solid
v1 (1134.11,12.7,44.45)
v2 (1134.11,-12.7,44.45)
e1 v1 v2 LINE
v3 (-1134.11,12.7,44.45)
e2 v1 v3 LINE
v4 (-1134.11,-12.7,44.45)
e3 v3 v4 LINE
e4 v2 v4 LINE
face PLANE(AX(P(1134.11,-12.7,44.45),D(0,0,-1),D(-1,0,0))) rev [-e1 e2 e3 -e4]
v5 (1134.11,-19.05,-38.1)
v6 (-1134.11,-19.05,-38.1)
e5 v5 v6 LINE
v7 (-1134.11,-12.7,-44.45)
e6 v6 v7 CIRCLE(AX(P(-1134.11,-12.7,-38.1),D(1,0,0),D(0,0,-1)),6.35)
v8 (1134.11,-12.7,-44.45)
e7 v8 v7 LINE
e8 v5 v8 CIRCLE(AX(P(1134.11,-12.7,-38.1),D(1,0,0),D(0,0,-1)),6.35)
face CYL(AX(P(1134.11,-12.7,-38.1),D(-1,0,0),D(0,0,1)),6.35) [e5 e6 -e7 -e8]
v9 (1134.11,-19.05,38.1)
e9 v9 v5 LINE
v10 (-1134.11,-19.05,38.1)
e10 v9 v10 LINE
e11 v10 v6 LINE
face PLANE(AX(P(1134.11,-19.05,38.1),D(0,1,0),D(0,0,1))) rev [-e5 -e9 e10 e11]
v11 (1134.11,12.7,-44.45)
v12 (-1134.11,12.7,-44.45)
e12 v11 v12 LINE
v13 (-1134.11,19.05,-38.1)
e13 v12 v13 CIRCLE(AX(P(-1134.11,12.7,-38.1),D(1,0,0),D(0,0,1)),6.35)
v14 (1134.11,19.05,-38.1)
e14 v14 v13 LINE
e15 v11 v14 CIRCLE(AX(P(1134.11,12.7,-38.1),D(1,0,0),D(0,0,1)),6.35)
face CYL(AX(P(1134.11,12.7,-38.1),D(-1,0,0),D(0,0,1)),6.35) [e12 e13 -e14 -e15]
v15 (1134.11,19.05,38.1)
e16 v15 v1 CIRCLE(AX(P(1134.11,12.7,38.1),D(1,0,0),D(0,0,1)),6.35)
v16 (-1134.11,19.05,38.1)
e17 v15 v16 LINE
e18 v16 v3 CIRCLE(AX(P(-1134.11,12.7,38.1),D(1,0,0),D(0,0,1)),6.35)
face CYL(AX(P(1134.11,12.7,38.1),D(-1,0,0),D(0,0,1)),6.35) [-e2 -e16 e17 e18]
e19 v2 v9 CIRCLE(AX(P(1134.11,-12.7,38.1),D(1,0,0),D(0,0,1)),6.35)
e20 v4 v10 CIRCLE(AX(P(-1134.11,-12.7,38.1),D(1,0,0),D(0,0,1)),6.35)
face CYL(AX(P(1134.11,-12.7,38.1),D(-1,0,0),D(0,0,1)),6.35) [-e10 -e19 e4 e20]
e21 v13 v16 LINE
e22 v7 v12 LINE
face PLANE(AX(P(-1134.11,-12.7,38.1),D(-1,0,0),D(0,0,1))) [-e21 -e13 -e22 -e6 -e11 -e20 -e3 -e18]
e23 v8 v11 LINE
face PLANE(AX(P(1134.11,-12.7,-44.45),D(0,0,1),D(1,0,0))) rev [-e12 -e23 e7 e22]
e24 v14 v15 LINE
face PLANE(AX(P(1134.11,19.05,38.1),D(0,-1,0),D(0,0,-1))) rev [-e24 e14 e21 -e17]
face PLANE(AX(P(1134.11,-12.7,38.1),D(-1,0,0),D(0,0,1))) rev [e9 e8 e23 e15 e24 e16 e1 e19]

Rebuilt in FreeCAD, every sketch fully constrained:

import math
import FreeCAD as App
import Part
import Sketcher

V = App.Vector
Q = App.Units.Quantity

doc = App.newDocument("Part")
body = doc.addObject("PartDesign::Body", "Body")

# Sketch on YZ plane
sketch1 = doc.addObject("Sketcher::SketchObject", "Sketch")
body.addObject(sketch1)
sketch1.AttachmentSupport = (doc.YZ_Plane, [""])
sketch1.MapMode = "FlatFace"
sketch1.addGeometry(Part.LineSegment(V(-19, 38, 0), V(-19, -38, 0)), False)
sketch1.addGeometry(Part.ArcOfCircle(Part.Circle(V(-13, -38, 0), V(0, 0, 1), 6), math.radians(180), math.radians(270)), False)
sketch1.addGeometry(Part.LineSegment(V(-13, -44, 0), V(13, -44, 0)), False)
sketch1.addGeometry(Part.ArcOfCircle(Part.Circle(V(13, -38, 0), V(0, 0, 1), 6), math.radians(-90), math.radians(0)), False)
sketch1.addGeometry(Part.LineSegment(V(19, -38, 0), V(19, 38, 0)), False)
sketch1.addGeometry(Part.ArcOfCircle(Part.Circle(V(13, 38, 0), V(0, 0, 1), 6), math.radians(0), math.radians(90)), False)
sketch1.addGeometry(Part.LineSegment(V(13, 44, 0), V(-13, 44, 0)), False)
sketch1.addGeometry(Part.ArcOfCircle(Part.Circle(V(-13, 38, 0), V(0, 0, 1), 6), math.radians(90), math.radians(180)), False)
sketch1.addConstraint(Sketcher.Constraint("Tangent", 0, 2, 1, 1))
sketch1.addConstraint(Sketcher.Constraint("Tangent", 1, 2, 2, 1))
sketch1.addConstraint(Sketcher.Constraint("Tangent", 2, 2, 3, 1))
sketch1.addConstraint(Sketcher.Constraint("Tangent", 3, 2, 4, 1))
sketch1.addConstraint(Sketcher.Constraint("Tangent", 4, 2, 5, 1))
sketch1.addConstraint(Sketcher.Constraint("Tangent", 5, 2, 6, 1))
sketch1.addConstraint(Sketcher.Constraint("Tangent", 6, 2, 7, 1))
sketch1.addConstraint(Sketcher.Constraint("Tangent", 7, 2, 0, 1))
sketch1.addConstraint(Sketcher.Constraint("Vertical", 0))
sketch1.addConstraint(Sketcher.Constraint("Horizontal", 2))
sketch1.addConstraint(Sketcher.Constraint("Vertical", 4))
sketch1.addConstraint(Sketcher.Constraint("Horizontal", 6))
sketch1.addConstraint(Sketcher.Constraint("Equal", 1, 3))
sketch1.addConstraint(Sketcher.Constraint("Equal", 3, 5))
sketch1.addConstraint(Sketcher.Constraint("Equal", 5, 7))
sketch1.addConstraint(Sketcher.Constraint("Symmetric", 1, 3, 5, 3, -1, 1))
sketch1.addConstraint(Sketcher.Constraint("DistanceX", 2, 1, 2, 2, Q("1 in")))
sketch1.addConstraint(Sketcher.Constraint("DistanceY", 0, 2, 0, 1, Q("3 in")))
sketch1.addConstraint(Sketcher.Constraint("Radius", 1, Q("0.25 in")))
pad1 = doc.addObject("PartDesign::Pad", "Pad")
body.addObject(pad1)
pad1.Profile = sketch1
pad1.Length = Q("89.3 in")
pad1.Midplane = True

doc.recompute()
